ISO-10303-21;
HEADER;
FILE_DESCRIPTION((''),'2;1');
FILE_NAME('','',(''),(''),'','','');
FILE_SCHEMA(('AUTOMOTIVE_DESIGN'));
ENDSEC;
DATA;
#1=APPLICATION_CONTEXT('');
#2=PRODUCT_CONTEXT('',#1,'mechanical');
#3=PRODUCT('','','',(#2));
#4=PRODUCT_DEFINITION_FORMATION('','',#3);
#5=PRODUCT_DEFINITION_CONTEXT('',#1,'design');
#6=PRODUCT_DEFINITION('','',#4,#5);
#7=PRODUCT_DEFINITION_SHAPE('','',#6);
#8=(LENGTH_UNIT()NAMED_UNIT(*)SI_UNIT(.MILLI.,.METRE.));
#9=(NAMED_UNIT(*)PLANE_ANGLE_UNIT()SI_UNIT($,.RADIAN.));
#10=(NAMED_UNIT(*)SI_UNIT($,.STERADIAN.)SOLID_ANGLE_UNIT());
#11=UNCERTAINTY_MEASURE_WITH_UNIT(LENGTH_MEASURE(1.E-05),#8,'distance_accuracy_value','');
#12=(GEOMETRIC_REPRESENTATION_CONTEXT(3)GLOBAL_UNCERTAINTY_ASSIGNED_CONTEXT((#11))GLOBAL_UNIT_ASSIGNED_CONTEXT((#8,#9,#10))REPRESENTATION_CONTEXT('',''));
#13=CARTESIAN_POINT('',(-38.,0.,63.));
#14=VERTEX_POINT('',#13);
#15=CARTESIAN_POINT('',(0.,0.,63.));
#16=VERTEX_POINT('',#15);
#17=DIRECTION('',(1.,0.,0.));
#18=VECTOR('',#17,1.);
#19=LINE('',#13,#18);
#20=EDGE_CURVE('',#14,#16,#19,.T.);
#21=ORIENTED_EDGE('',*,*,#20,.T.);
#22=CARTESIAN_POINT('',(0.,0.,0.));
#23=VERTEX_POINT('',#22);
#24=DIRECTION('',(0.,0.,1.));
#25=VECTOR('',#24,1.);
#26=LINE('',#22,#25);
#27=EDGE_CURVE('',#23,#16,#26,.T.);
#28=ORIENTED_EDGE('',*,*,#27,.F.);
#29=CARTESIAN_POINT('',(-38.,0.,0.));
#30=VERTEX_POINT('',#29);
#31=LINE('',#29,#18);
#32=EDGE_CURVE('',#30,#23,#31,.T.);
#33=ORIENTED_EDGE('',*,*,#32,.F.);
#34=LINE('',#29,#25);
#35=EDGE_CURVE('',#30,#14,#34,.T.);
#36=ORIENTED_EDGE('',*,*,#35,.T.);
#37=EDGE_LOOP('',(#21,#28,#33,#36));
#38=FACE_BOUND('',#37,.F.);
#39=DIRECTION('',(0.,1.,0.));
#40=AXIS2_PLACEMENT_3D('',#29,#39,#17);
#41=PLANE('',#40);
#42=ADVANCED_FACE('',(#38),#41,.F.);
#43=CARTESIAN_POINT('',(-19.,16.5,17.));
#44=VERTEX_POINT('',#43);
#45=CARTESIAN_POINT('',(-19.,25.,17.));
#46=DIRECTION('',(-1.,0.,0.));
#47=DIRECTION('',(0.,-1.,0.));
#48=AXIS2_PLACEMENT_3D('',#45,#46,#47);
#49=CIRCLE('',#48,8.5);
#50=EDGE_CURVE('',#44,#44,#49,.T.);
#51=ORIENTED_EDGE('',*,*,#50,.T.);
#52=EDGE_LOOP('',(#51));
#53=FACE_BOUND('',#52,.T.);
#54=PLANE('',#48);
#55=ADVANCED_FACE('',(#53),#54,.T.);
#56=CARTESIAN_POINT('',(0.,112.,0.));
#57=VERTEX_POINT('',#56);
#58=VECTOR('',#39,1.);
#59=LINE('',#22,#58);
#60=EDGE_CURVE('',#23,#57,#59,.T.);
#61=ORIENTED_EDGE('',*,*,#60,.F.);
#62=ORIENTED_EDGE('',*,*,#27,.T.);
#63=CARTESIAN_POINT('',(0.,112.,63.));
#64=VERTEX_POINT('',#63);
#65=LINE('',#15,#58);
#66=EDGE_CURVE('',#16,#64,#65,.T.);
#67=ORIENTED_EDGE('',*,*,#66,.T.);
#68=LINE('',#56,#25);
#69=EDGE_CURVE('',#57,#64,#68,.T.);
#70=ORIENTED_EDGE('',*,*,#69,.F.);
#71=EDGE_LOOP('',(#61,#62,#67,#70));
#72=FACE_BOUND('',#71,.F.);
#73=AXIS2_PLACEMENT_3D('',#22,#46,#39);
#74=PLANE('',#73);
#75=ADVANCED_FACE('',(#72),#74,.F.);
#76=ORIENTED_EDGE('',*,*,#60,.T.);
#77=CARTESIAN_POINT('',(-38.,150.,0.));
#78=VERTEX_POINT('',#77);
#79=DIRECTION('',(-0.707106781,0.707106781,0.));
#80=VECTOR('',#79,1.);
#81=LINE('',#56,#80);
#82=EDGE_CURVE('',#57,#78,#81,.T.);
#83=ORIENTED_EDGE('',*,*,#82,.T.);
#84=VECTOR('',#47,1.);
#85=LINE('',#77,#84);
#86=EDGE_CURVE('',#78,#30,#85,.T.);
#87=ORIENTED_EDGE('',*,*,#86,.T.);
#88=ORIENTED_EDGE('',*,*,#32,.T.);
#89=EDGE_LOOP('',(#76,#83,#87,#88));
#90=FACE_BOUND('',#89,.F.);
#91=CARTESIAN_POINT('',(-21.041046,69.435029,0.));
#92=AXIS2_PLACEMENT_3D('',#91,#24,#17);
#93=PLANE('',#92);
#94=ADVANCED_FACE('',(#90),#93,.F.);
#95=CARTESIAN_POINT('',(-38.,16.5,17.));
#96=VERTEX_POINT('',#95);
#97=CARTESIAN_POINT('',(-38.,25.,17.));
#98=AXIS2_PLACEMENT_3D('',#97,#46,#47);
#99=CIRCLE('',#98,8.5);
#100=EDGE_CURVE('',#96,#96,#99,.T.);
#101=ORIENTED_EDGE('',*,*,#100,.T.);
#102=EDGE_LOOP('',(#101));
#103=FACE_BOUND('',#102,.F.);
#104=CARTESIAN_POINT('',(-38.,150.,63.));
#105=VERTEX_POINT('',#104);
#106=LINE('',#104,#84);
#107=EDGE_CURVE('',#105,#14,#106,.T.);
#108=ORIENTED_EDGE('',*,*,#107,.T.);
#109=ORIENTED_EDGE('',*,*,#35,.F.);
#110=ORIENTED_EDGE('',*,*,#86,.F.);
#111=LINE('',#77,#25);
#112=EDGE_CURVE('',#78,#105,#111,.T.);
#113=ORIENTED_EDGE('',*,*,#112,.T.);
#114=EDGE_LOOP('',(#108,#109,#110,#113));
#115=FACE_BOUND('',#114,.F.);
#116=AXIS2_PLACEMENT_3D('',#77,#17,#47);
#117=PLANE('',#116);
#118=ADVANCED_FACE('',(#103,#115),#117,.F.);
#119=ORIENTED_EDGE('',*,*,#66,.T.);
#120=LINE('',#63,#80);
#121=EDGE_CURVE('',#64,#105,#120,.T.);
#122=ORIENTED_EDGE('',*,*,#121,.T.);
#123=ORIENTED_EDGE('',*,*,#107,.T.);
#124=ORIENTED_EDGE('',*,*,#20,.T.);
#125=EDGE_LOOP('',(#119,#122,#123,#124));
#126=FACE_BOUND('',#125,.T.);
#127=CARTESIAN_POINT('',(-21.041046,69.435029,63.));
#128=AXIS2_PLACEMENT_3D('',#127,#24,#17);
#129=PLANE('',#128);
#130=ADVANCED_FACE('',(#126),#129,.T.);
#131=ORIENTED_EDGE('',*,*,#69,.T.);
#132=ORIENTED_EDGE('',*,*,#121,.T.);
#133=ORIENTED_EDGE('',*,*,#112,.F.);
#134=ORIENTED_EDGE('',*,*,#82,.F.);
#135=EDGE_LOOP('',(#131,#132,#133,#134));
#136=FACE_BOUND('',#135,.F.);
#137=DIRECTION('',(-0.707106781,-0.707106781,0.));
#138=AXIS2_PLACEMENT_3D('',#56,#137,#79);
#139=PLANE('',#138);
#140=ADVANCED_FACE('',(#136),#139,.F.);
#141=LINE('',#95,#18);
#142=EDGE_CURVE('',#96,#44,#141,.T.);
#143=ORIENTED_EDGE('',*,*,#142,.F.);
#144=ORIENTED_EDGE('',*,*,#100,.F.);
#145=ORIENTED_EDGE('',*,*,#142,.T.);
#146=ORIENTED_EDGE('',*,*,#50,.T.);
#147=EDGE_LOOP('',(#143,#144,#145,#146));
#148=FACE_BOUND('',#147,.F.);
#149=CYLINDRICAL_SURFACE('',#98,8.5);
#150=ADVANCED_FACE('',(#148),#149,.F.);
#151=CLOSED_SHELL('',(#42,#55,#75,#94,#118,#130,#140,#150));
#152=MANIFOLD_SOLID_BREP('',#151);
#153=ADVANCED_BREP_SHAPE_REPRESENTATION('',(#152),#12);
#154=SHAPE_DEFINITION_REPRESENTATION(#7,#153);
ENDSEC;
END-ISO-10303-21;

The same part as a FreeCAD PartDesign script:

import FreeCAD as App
import Part
import Sketcher

V = App.Vector
Q = App.Units.Quantity


def add_polygon(sketch, points):
    """Adds a closed chain of lines whose ends are joined by coincident constraints."""
    first, n = sketch.GeometryCount, len(points)
    for a, b in zip(points, points[1:] + points[:1]):
        sketch.addGeometry(Part.LineSegment(App.Vector(*a, 0), App.Vector(*b, 0)), False)
    for i in range(n):
        sketch.addConstraint(Sketcher.Constraint("Coincident", first + i, 2, first + (i + 1) % n, 1))

doc = App.newDocument("Part")
body = doc.addObject("PartDesign::Body", "Body")

sketch1 = body.newObject("Sketcher::SketchObject", "Sketch")
sketch1.AttachmentSupport = (doc.getObject("XY_Plane"), [""])
sketch1.MapMode = "FlatFace"
add_polygon(sketch1, [(-38, 0), (0, 0), (0, 112), (-38, 150)])
sketch1.addConstraint([
    Sketcher.Constraint("Horizontal", 0),
    Sketcher.Constraint("Vertical", 1),
    Sketcher.Constraint("Vertical", 3),
    Sketcher.Constraint("Coincident", 0, 2, -1, 1),
    Sketcher.Constraint("DistanceX", 0, 1, 0, 2, Q("38 mm")),
    Sketcher.Constraint("DistanceY", 1, 1, 1, 2, Q("112 mm")),
    Sketcher.Constraint("DistanceY", 3, 2, 3, 1, Q("150 mm")),
])
pad1 = body.newObject("PartDesign::Pad", "Pad")
pad1.Profile = sketch1
pad1.Length = 63

sketch2 = body.newObject("Sketcher::SketchObject", "Sketch001")
sketch2.AttachmentSupport = (doc.getObject("YZ_Plane"), [""])
sketch2.MapMode = "FlatFace"
sketch2.AttachmentOffset = App.Placement(V(0, 0, -38), App.Rotation())
sketch2.addGeometry(Part.Circle(V(25, 17, 0), V(0, 0, 1), 8.5), False)
sketch2.addConstraint([
    Sketcher.Constraint("Diameter", 0, Q("17 mm")),
    Sketcher.Constraint("DistanceX", -1, 1, 0, 3, Q("25 mm")),
    Sketcher.Constraint("DistanceY", -1, 1, 0, 3, Q("17 mm")),
])
pocket1 = body.newObject("PartDesign::Pocket", "Pocket")
pocket1.Profile = sketch2
pocket1.Length = 19
pocket1.Reversed = True

doc.recompute()
